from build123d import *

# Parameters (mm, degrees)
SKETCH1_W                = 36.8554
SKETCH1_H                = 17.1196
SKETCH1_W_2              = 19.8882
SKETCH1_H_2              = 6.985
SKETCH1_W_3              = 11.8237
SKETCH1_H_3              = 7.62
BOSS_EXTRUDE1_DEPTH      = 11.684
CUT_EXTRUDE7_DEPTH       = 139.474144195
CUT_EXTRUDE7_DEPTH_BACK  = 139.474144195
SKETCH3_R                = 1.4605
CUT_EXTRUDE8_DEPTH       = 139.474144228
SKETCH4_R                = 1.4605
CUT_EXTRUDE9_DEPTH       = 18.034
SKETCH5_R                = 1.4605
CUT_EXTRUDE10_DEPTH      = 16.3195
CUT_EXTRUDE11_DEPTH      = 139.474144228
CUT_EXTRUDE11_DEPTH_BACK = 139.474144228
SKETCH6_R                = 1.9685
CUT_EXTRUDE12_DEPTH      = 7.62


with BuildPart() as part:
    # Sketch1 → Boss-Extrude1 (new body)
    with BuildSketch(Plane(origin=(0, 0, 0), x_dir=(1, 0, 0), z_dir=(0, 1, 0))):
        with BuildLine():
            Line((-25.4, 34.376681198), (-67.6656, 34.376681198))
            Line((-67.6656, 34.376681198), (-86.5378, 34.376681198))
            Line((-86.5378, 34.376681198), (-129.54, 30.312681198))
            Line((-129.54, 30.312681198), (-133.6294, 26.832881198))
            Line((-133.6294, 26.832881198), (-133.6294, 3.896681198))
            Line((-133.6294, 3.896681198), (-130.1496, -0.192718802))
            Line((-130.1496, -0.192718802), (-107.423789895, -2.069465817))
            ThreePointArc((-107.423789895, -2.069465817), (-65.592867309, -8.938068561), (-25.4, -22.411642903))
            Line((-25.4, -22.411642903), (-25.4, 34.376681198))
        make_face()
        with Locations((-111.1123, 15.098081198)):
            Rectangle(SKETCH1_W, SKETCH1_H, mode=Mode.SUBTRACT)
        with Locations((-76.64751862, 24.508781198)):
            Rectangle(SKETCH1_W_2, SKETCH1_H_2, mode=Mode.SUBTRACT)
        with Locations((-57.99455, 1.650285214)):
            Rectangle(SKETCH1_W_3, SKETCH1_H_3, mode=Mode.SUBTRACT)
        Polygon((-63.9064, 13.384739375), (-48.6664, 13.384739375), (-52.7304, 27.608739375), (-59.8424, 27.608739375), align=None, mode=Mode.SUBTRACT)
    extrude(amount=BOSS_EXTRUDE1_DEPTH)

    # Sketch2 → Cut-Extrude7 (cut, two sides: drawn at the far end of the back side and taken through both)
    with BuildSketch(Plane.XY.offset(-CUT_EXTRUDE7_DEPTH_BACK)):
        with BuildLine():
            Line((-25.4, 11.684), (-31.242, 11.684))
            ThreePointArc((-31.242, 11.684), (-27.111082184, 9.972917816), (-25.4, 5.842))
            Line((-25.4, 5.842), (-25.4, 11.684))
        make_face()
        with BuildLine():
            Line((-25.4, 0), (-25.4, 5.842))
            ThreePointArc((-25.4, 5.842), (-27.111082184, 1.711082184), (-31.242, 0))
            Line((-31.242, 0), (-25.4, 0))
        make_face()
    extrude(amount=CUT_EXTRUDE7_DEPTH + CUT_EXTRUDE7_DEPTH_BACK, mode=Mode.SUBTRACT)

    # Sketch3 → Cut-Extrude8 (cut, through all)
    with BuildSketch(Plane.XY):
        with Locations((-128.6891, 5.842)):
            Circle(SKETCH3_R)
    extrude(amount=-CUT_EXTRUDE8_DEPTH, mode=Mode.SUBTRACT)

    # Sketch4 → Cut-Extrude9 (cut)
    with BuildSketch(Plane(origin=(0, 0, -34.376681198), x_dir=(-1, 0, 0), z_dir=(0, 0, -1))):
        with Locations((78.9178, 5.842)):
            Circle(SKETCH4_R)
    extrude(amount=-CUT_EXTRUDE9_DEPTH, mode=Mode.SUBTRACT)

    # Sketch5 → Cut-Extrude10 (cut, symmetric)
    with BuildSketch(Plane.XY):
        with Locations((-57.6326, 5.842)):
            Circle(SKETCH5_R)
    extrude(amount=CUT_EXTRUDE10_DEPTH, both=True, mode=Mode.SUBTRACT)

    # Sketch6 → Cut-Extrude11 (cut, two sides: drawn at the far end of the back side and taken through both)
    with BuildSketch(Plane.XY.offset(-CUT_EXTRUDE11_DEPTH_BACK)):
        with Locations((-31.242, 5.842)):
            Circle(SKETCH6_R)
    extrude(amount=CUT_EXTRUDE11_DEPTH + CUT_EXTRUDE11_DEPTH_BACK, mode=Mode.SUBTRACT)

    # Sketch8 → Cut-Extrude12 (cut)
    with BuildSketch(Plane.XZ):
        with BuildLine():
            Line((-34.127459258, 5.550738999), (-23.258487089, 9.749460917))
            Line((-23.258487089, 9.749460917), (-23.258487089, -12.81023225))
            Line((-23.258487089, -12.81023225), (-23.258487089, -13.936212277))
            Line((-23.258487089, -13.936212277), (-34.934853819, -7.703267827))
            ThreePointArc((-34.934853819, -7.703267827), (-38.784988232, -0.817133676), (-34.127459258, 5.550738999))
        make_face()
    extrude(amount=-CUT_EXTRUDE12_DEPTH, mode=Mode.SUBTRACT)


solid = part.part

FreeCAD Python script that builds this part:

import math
import FreeCAD as App
import Part
import Sketcher
Q = App.Units.Quantity

doc = App.newDocument("Part")
body = doc.addObject("PartDesign::Body", "Body")

# Sketch on XZ plane
sketch1 = doc.addObject("Sketcher::SketchObject", "Sketch")
body.addObject(sketch1)
sketch1.AttachmentSupport = (doc.XZ_Plane, [""])
sketch1.MapMode = "FlatFace"
sketch1.addGeometry(Part.LineSegment(App.Vector(-25, -34, 0), App.Vector(-87, -34, 0)), False)
sketch1.addGeometry(Part.LineSegment(App.Vector(-87, -34, 0), App.Vector(-130, -30, 0)), False)
sketch1.addGeometry(Part.LineSegment(App.Vector(-130, -30, 0), App.Vector(-134, -27, 0)), False)
sketch1.addGeometry(Part.LineSegment(App.Vector(-134, -27, 0), App.Vector(-134, -4, 0)), False)
sketch1.addGeometry(Part.LineSegment(App.Vector(-134, -4, 0), App.Vector(-130, 0, 0)), False)
sketch1.addGeometry(Part.LineSegment(App.Vector(-130, 0, 0), App.Vector(-107, 2, 0)), False)
sketch1.addGeometry(Part.ArcOfCircle(Part.Circle(App.Vector(-129, 265, 0), App.Vector(0, 0, 1), 264), math.radians(-85.28), math.radians(-66.86)), False)
sketch1.addGeometry(Part.LineSegment(App.Vector(-25, 22, 0), App.Vector(-25, -34, 0)), False)
sketch1.addGeometry(Part.LineSegment(App.Vector(-52, 2, 0), App.Vector(-64, 2, 0)), False)
sketch1.addGeometry(Part.LineSegment(App.Vector(-64, 2, 0), App.Vector(-64, -5, 0)), False)
sketch1.addGeometry(Part.LineSegment(App.Vector(-64, -5, 0), App.Vector(-52, -5, 0)), False)
sketch1.addGeometry(Part.LineSegment(App.Vector(-52, -5, 0), App.Vector(-52, 2, 0)), False)
sketch1.addGeometry(Part.LineSegment(App.Vector(-93, -7, 0), App.Vector(-130, -7, 0)), False)
sketch1.addGeometry(Part.LineSegment(App.Vector(-130, -7, 0), App.Vector(-130, -24, 0)), False)
sketch1.addGeometry(Part.LineSegment(App.Vector(-130, -24, 0), App.Vector(-93, -24, 0)), False)
sketch1.addGeometry(Part.LineSegment(App.Vector(-93, -24, 0), App.Vector(-93, -7, 0)), False)
sketch1.addGeometry(Part.LineSegment(App.Vector(-67, -21, 0), App.Vector(-87, -21, 0)), False)
sketch1.addGeometry(Part.LineSegment(App.Vector(-87, -21, 0), App.Vector(-87, -28, 0)), False)
sketch1.addGeometry(Part.LineSegment(App.Vector(-87, -28, 0), App.Vector(-67, -28, 0)), False)
sketch1.addGeometry(Part.LineSegment(App.Vector(-67, -28, 0), App.Vector(-67, -21, 0)), False)
sketch1.addGeometry(Part.LineSegment(App.Vector(-49, -13, 0), App.Vector(-64, -13, 0)), False)
sketch1.addGeometry(Part.LineSegment(App.Vector(-64, -13, 0), App.Vector(-60, -28, 0)), False)
sketch1.addGeometry(Part.LineSegment(App.Vector(-60, -28, 0), App.Vector(-53, -28, 0)), False)
sketch1.addGeometry(Part.LineSegment(App.Vector(-53, -28, 0), App.Vector(-49, -13, 0)), False)
sketch1.addConstraint(Sketcher.Constraint("Coincident", 0, 2, 1, 1))
sketch1.addConstraint(Sketcher.Constraint("Coincident", 1, 2, 2, 1))
sketch1.addConstraint(Sketcher.Constraint("Coincident", 2, 2, 3, 1))
sketch1.addConstraint(Sketcher.Constraint("Coincident", 3, 2, 4, 1))
sketch1.addConstraint(Sketcher.Constraint("Coincident", 4, 2, 5, 1))
sketch1.addConstraint(Sketcher.Constraint("Tangent", 5, 2, 6, 1))
sketch1.addConstraint(Sketcher.Constraint("Coincident", 6, 2, 7, 1))
sketch1.addConstraint(Sketcher.Constraint("Coincident", 7, 2, 0, 1))
sketch1.addConstraint(Sketcher.Constraint("Coincident", 8, 2, 9, 1))
sketch1.addConstraint(Sketcher.Constraint("Coincident", 9, 2, 10, 1))
sketch1.addConstraint(Sketcher.Constraint("Coincident", 10, 2, 11, 1))
sketch1.addConstraint(Sketcher.Constraint("Coincident", 11, 2, 8, 1))
sketch1.addConstraint(Sketcher.Constraint("Coincident", 12, 2, 13, 1))
sketch1.addConstraint(Sketcher.Constraint("Coincident", 13, 2, 14, 1))
sketch1.addConstraint(Sketcher.Constraint("Coincident", 14, 2, 15, 1))
sketch1.addConstraint(Sketcher.Constraint("Coincident", 15, 2, 12, 1))
sketch1.addConstraint(Sketcher.Constraint("Coincident", 16, 2, 17, 1))
sketch1.addConstraint(Sketcher.Constraint("Coincident", 17, 2, 18, 1))
sketch1.addConstraint(Sketcher.Constraint("Coincident", 18, 2, 19, 1))
sketch1.addConstraint(Sketcher.Constraint("Coincident", 19, 2, 16, 1))
sketch1.addConstraint(Sketcher.Constraint("Coincident", 20, 2, 21, 1))
sketch1.addConstraint(Sketcher.Constraint("Coincident", 21, 2, 22, 1))
sketch1.addConstraint(Sketcher.Constraint("Coincident", 22, 2, 23, 1))
sketch1.addConstraint(Sketcher.Constraint("Coincident", 23, 2, 20, 1))
sketch1.addConstraint(Sketcher.Constraint("Horizontal", 0))
sketch1.addConstraint(Sketcher.Constraint("Vertical", 3))
sketch1.addConstraint(Sketcher.Constraint("Vertical", 7))
sketch1.addConstraint(Sketcher.Constraint("Horizontal", 8))
sketch1.addConstraint(Sketcher.Constraint("Vertical", 9))
sketch1.addConstraint(Sketcher.Constraint("Horizontal", 10))
sketch1.addConstraint(Sketcher.Constraint("Vertical", 11))
sketch1.addConstraint(Sketcher.Constraint("Horizontal", 12))
sketch1.addConstraint(Sketcher.Constraint("Vertical", 13))
sketch1.addConstraint(Sketcher.Constraint("Horizontal", 14))
sketch1.addConstraint(Sketcher.Constraint("Vertical", 15))
sketch1.addConstraint(Sketcher.Constraint("Horizontal", 16))
sketch1.addConstraint(Sketcher.Constraint("Vertical", 17))
sketch1.addConstraint(Sketcher.Constraint("Horizontal", 18))
sketch1.addConstraint(Sketcher.Constraint("Vertical", 19))
sketch1.addConstraint(Sketcher.Constraint("Horizontal", 20))
sketch1.addConstraint(Sketcher.Constraint("Horizontal", 22))
sketch1.addConstraint(Sketcher.Constraint("Perpendicular", 2, 4))
sketch1.addConstraint(Sketcher.Constraint("Vertical", 1, 2, 12, 2))
sketch1.addConstraint(Sketcher.Constraint("Vertical", 9, 2, 20, 2))
sketch1.addConstraint(Sketcher.Constraint("Equal", 2, 4))
sketch1.addConstraint(Sketcher.Constraint("Equal", 21, 23))
sketch1.addConstraint(Sketcher.Constraint("DistanceX", 20, 2, 20, 1, Q("0.6 in")))
sketch1.addConstraint(Sketcher.Constraint("DistanceY", 9, 2, 9, 1, Q("0.3 in")))
sketch1.addConstraint(Sketcher.Constraint("DistanceX", 6, 2, -1, 1, Q("1 in")))
sketch1.addConstraint(Sketcher.Constraint("DistanceX", 22, 1, 22, 2, Q("0.28 in")))
sketch1.addConstraint(Sketcher.Constraint("DistanceX", 1, 2, -1, 1, Q("5.1 in")))
sketch1.addConstraint(Sketcher.Constraint("DistanceY", 0, 2, 3, 2, Q("1.2 in")))
sketch1.addConstraint(Sketcher.Constraint("DistanceX", 0, 2, 0, 1, Q("2.407 in")))
sketch1.addConstraint(Sketcher.Constraint("DistanceX", 12, 2, 12, 1, Q("1.451 in")))
sketch1.addConstraint(Sketcher.Constraint("DistanceX", 16, 2, 16, 1, Q("0.783 in")))
sketch1.addConstraint(Sketcher.Constraint("DistanceY", 3, 1, 3, 2, Q("0.903 in")))
sketch1.addConstraint(Sketcher.Constraint("DistanceY", 13, 2, 13, 1, Q("0.674 in")))
sketch1.addConstraint(Sketcher.Constraint("DistanceY", 17, 2, 17, 1, Q("0.275 in")))
sketch1.addConstraint(Sketcher.Constraint("DistanceY", 0, 2, 1, 2, Q("0.16 in")))
sketch1.addConstraint(Sketcher.Constraint("DistanceY", 16, 2, 15, 2, Q("0.57 in")))
sketch1.addConstraint(Sketcher.Constraint("DistanceY", 21, 2, 20, 2, Q("0.56 in")))
sketch1.addConstraint(Sketcher.Constraint("DistanceX", 8, 2, 8, 1, Q("0.4655 in")))
sketch1.addConstraint(Sketcher.Constraint("DistanceX", 2, 2, -1, 1, Q("5.261 in")))
sketch1.addConstraint(Sketcher.Constraint("DistanceX", 8, 2, -1, 1, Q("2.516 in")))
sketch1.addConstraint(Sketcher.Constraint("Radius", 6, Q("264.06867 mm")))
sketch1.addConstraint(Sketcher.Constraint("DistanceY", 12, 2, 3, 2, Q("0.104 in")))
sketch1.addConstraint(Sketcher.Constraint("Distance", 5, Q("22.803171 mm")))
sketch1.addConstraint(Sketcher.Constraint("DistanceY", 7, 2, 7, 1, Q("56.788324 mm")))
sketch1.addConstraint(Sketcher.Constraint("DistanceY", 0, 2, -1, 1, Q("34.376681 mm")))
sketch1.addConstraint(Sketcher.Constraint("DistanceX", 16, 2, -1, 1, Q("86.591619 mm")))
sketch1.addConstraint(Sketcher.Constraint("DistanceY", 20, 2, -1, 1, Q("13.384739 mm")))
sketch1.addConstraint(Sketcher.Constraint("DistanceY", 8, 2, 6, 2, Q("20.251928 mm")))
pad1 = doc.addObject("PartDesign::Pad", "Pad")
body.addObject(pad1)
pad1.Profile = sketch1
pad1.Length = Q("0.46 in")
pad1.Reversed = True

# Sketch on XY plane
sketch2 = doc.addObject("Sketcher::SketchObject", "Sketch001")
body.addObject(sketch2)
sketch2.AttachmentSupport = (doc.XY_Plane, [""])
sketch2.MapMode = "FlatFace"
sketch2.addGeometry(Part.LineSegment(App.Vector(-25, 12, 0), App.Vector(-31, 12, 0)), False)
sketch2.addGeometry(Part.ArcOfCircle(Part.Circle(App.Vector(-31, 6, 0), App.Vector(0, 0, 1), 6), math.radians(0), math.radians(90)), False)
sketch2.addGeometry(Part.LineSegment(App.Vector(-25, 6, 0), App.Vector(-25, 12, 0)), False)
sketch2.addGeometry(Part.LineSegment(App.Vector(-25, 0, 0), App.Vector(-25, 6, 0)), False)
sketch2.addGeometry(Part.ArcOfCircle(Part.Circle(App.Vector(-31, 6, 0), App.Vector(0, 0, 1), 6), math.radians(-90), math.radians(0)), False)
sketch2.addGeometry(Part.LineSegment(App.Vector(-31, 0, 0), App.Vector(-25, 0, 0)), False)
sketch2.addConstraint(Sketcher.Constraint("Tangent", 0, 2, 1, 2))
sketch2.addConstraint(Sketcher.Constraint("Tangent", 1, 1, 2, 1))
sketch2.addConstraint(Sketcher.Constraint("Coincident", 2, 2, 0, 1))
sketch2.addConstraint(Sketcher.Constraint("Tangent", 3, 2, 4, 2))
sketch2.addConstraint(Sketcher.Constraint("Tangent", 4, 1, 5, 1))
sketch2.addConstraint(Sketcher.Constraint("Coincident", 5, 2, 3, 1))
sketch2.addConstraint(Sketcher.Constraint("Horizontal", 0))
sketch2.addConstraint(Sketcher.Constraint("Vertical", 2))
sketch2.addConstraint(Sketcher.Constraint("Vertical", 3))
sketch2.addConstraint(Sketcher.Constraint("Horizontal", 5))
sketch2.addConstraint(Sketcher.Constraint("Coincident", 4, 3, 1, 3))
sketch2.addConstraint(Sketcher.Constraint("Equal", 1, 4))
sketch2.addConstraint(Sketcher.Constraint("PointOnObject", 4, 1, -1))
sketch2.addConstraint(Sketcher.Constraint("Radius", 1, Q("0.23 in")))
sketch2.addConstraint(Sketcher.Constraint("DistanceX", 1, 1, -1, 1, Q("1 in")))
pocket1 = doc.addObject("PartDesign::Pocket", "Pocket")
body.addObject(pocket1)
pocket1.Profile = sketch2
pocket1.Type = "ThroughAll"
pocket1.Midplane = True

# Sketch on XY plane
sketch3 = doc.addObject("Sketcher::SketchObject", "Sketch002")
body.addObject(sketch3)
sketch3.AttachmentSupport = (doc.XY_Plane, [""])
sketch3.MapMode = "FlatFace"
sketch3.addGeometry(Part.Circle(App.Vector(-128.7, 5.8, 0), App.Vector(0, 0, 1), 1.5), False)
sketch3.addConstraint(Sketcher.Constraint("Diameter", 0, Q("0.115 in")))
sketch3.addConstraint(Sketcher.Constraint("DistanceY", -1, 1, 0, 3, Q("0.23 in")))
sketch3.addConstraint(Sketcher.Constraint("DistanceX", 0, 3, -1, 1, Q("5.0665 in")))
pocket2 = doc.addObject("PartDesign::Pocket", "Pocket001")
body.addObject(pocket2)
pocket2.Profile = sketch3
pocket2.Type = "ThroughAll"

# Sketch on XY plane
sketch4 = doc.addObject("Sketcher::SketchObject", "Sketch003")
body.addObject(sketch4)
sketch4.AttachmentSupport = (doc.XY_Plane, [""])
sketch4.MapMode = "FlatFace"
sketch4.AttachmentOffset = App.Placement(App.Vector(0, 0, -34.376681), App.Rotation())
sketch4.addGeometry(Part.Circle(App.Vector(-78.9, 5.8, 0), App.Vector(0, 0, 1), 1.5), False)
sketch4.addConstraint(Sketcher.Constraint("Diameter", 0, Q("0.115 in")))
sketch4.addConstraint(Sketcher.Constraint("DistanceY", -1, 1, 0, 3, Q("0.23 in")))
sketch4.addConstraint(Sketcher.Constraint("DistanceX", 0, 3, -1, 1, Q("3.107 in")))
pocket3 = doc.addObject("PartDesign::Pocket", "Pocket002")
body.addObject(pocket3)
pocket3.Profile = sketch4
pocket3.Length = Q("0.71 in")
pocket3.Reversed = True

# Sketch on XY plane
sketch5 = doc.addObject("Sketcher::SketchObject", "Sketch004")
body.addObject(sketch5)
sketch5.AttachmentSupport = (doc.XY_Plane, [""])
sketch5.MapMode = "FlatFace"
sketch5.addGeometry(Part.Circle(App.Vector(-57.6, 5.8, 0), App.Vector(0, 0, 1), 1.5), False)
sketch5.addConstraint(Sketcher.Constraint("Diameter", 0, Q("0.115 in")))
sketch5.addConstraint(Sketcher.Constraint("DistanceY", -1, 1, 0, 3, Q("0.23 in")))
sketch5.addConstraint(Sketcher.Constraint("DistanceX", 0, 3, -1, 1, Q("2.269 in")))
pocket4 = doc.addObject("PartDesign::Pocket", "Pocket003")
body.addObject(pocket4)
pocket4.Profile = sketch5
pocket4.Length = Q("1.285 in")
pocket4.Midplane = True

# Sketch on XY plane
sketch6 = doc.addObject("Sketcher::SketchObject", "Sketch005")
body.addObject(sketch6)
sketch6.AttachmentSupport = (doc.XY_Plane, [""])
sketch6.MapMode = "FlatFace"
sketch6.addGeometry(Part.Circle(App.Vector(-31.2, 5.8, 0), App.Vector(0, 0, 1), 2), False)
sketch6.addConstraint(Sketcher.Constraint("Diameter", 0, Q("0.155 in")))
sketch6.addConstraint(Sketcher.Constraint("DistanceX", 0, 3, -1, 1, Q("1.23 in")))
sketch6.addConstraint(Sketcher.Constraint("DistanceY", -1, 1, 0, 3, Q("0.23 in")))
pocket5 = doc.addObject("PartDesign::Pocket", "Pocket004")
body.addObject(pocket5)
pocket5.Profile = sketch6
pocket5.Type = "ThroughAll"
pocket5.Midplane = True

# Sketch on XZ plane
sketch7 = doc.addObject("Sketcher::SketchObject", "Sketch006")
body.addObject(sketch7)
sketch7.AttachmentSupport = (doc.XZ_Plane, [""])
sketch7.MapMode = "FlatFace"
sketch7.addGeometry(Part.LineSegment(App.Vector(-23, 10, 0), App.Vector(-34, 6, 0)), False)
sketch7.addGeometry(Part.ArcOfCircle(Part.Circle(App.Vector(-31, -1, 0), App.Vector(0, 0, 1), 7), math.radians(111), math.radians(242)), False)
sketch7.addGeometry(Part.LineSegment(App.Vector(-35, -8, 0), App.Vector(-23, -14, 0)), False)
sketch7.addGeometry(Part.LineSegment(App.Vector(-23, -14, 0), App.Vector(-23, 10, 0)), False)
sketch7.addConstraint(Sketcher.Constraint("Tangent", 0, 2, 1, 1))
sketch7.addConstraint(Sketcher.Constraint("Tangent", 1, 2, 2, 1))
sketch7.addConstraint(Sketcher.Constraint("Coincident", 2, 2, 3, 1))
sketch7.addConstraint(Sketcher.Constraint("Coincident", 3, 2, 0, 1))
sketch7.addConstraint(Sketcher.Constraint("Vertical", 3))
sketch7.addConstraint(Sketcher.Constraint("Radius", 1, Q("0.2875 in")))
sketch7.addConstraint(Sketcher.Constraint("DistanceX", 1, 3, -1, 1, Q("1.24 in")))
sketch7.addConstraint(Sketcher.Constraint("DistanceY", 3, 1, 3, 2, Q("23.685673 mm")))
sketch7.addConstraint(Sketcher.Constraint("DistanceX", 0, 2, -1, 1, Q("34.127459 mm")))
sketch7.addConstraint(Sketcher.Constraint("DistanceY", -1, 1, 0, 2, Q("5.550739 mm")))
sketch7.addConstraint(Sketcher.Constraint("DistanceY", -1, 1, 3, 2, Q("9.749461 mm")))
pocket6 = doc.addObject("PartDesign::Pocket", "Pocket005")
body.addObject(pocket6)
pocket6.Profile = sketch7
pocket6.Length = Q("0.3 in")

doc.recompute()
